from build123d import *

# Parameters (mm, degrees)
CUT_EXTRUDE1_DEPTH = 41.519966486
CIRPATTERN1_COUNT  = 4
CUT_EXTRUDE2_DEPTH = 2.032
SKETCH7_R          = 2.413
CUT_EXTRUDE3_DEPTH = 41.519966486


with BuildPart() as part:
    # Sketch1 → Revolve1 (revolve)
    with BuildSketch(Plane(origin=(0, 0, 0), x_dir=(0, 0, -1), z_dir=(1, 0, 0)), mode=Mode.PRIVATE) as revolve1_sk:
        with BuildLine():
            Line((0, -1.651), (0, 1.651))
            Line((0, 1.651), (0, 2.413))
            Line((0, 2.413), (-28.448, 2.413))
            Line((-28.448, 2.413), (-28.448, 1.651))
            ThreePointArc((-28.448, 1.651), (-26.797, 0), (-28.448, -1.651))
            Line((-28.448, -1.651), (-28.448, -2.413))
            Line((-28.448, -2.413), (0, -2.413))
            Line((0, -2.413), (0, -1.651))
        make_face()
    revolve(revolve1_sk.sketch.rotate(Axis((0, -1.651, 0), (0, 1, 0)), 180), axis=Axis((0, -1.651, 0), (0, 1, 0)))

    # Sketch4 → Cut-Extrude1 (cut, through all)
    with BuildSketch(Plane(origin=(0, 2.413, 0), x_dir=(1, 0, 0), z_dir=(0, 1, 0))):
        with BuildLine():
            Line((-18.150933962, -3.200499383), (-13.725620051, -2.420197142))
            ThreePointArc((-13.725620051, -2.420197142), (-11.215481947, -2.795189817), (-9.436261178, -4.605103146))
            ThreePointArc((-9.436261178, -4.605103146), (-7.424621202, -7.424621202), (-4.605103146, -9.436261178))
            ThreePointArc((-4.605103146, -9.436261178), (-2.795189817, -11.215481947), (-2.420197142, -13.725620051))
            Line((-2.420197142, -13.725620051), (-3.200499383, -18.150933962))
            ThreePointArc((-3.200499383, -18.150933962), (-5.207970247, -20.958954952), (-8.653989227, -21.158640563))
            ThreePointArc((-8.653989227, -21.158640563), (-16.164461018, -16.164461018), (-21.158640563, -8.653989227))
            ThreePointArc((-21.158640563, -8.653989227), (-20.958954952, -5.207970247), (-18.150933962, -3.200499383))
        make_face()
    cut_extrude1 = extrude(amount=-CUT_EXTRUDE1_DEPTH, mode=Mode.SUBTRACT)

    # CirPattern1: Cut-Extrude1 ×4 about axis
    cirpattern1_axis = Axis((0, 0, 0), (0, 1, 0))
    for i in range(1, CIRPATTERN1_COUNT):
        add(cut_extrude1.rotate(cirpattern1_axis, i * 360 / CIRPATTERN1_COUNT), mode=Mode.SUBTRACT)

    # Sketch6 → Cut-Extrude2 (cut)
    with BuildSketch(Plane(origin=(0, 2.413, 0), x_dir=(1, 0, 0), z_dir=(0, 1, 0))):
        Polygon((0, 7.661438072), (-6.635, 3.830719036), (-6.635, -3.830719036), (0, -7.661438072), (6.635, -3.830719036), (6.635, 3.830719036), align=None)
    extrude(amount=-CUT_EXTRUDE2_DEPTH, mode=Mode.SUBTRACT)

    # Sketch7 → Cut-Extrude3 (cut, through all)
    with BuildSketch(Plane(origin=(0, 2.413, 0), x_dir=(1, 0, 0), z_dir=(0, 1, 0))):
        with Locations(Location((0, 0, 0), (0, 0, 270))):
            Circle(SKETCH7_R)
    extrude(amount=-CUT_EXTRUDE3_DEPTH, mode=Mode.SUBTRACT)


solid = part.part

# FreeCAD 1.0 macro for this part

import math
import FreeCAD as App
import Part
import Sketcher

V = App.Vector
Q = App.Units.Quantity

doc = App.newDocument("Part")
body = doc.addObject("PartDesign::Body", "Body")

# Sketch on YZ plane
sketch1 = body.newObject("Sketcher::SketchObject", "Sketch")
sketch1.AttachmentSupport = (doc.getObject("YZ_Plane"), [""])
sketch1.MapMode = "FlatFace"
sketch1.addGeometry([
    Part.LineSegment(V(2.4, 0, 0), V(2.4, 28.4, 0)),  # 0
    Part.LineSegment(V(2.4, 28.4, 0), V(1.7, 28.4, 0)),  # 1
    Part.ArcOfCircle(Part.Circle(V(0, 28.4, 0), V(0, 0, 1), 1.7), math.radians(180), math.radians(360)),  # 2
    Part.LineSegment(V(-1.7, 28.4, 0), V(-2.4, 28.4, 0)),  # 3
    Part.LineSegment(V(-2.4, 28.4, 0), V(-2.4, 0, 0)),  # 4
    Part.LineSegment(V(-2.4, 0, 0), V(2.4, 0, 0)),  # 5
], False)
sketch1.addConstraint([
    Sketcher.Constraint("Coincident", 0, 2, 1, 1),
    Sketcher.Constraint("Coincident", 1, 2, 2, 2),
    Sketcher.Constraint("Coincident", 2, 1, 3, 1),
    Sketcher.Constraint("Coincident", 3, 2, 4, 1),
    Sketcher.Constraint("Coincident", 4, 2, 5, 1),
    Sketcher.Constraint("Coincident", 5, 2, 0, 1),
    Sketcher.Constraint("Vertical", 0),
    Sketcher.Constraint("Horizontal", 1),
    Sketcher.Constraint("Horizontal", 3),
    Sketcher.Constraint("Vertical", 4),
    Sketcher.Constraint("Horizontal", 5),
    Sketcher.Constraint("Symmetric", 4, 2, 5, 2, -1, 1),
    Sketcher.Constraint("Symmetric", 1, 2, 2, 1, -2),
    Sketcher.Constraint("Horizontal", 2, 3, 0, 2),
    Sketcher.Constraint("Radius", 2, Q("0.065 in")),
    Sketcher.Constraint("DistanceX", 1, 2, 1, 1, Q("0.03 in")),
    Sketcher.Constraint("DistanceY", 0, 1, 0, 2, Q("1.12 in")),
])
revolution = body.newObject("PartDesign::Revolution", "Revolution")
revolution.Profile = sketch1
revolution.ReferenceAxis = (sketch1, ["H_Axis"])
revolution.Angle = 360

# Sketch on XZ plane
sketch2 = body.newObject("Sketcher::SketchObject", "Sketch001")
sketch2.AttachmentSupport = (doc.getObject("XZ_Plane"), [""])
sketch2.MapMode = "FlatFace"
sketch2.AttachmentOffset = App.Placement(V(0, 0, -0.095 * 25.4), App.Rotation())
sketch2.addGeometry([
    Part.LineSegment(V(-13.7, 2.4, 0), V(-18.2, 3.2, 0)),  # 0
    Part.ArcOfCircle(Part.Circle(V(-17.5, 7.1, 0), V(0, 0, 1), 4), math.radians(158), math.radians(260)),  # 1
    Part.ArcOfCircle(Part.Circle(V(0, 0, 0), V(0, 0, 1), 22.9), math.radians(112), math.radians(158)),  # 2
    Part.ArcOfCircle(Part.Circle(V(-7.1, 17.5, 0), V(0, 0, 1), 4), math.radians(10), math.radians(112)),  # 3
    Part.LineSegment(V(-3.2, 18.2, 0), V(-2.4, 13.7, 0)),  # 4
    Part.ArcOfCircle(Part.Circle(V(-6.4, 13, 0), V(0, 0, 1), 4), math.radians(-64), math.radians(10)),  # 5
    Part.ArcOfCircle(Part.Circle(V(0, 0, 0), V(0, 0, 1), 10.5), math.radians(116), math.radians(154)),  # 6
    Part.ArcOfCircle(Part.Circle(V(-13, 6.4, 0), V(0, 0, 1), 4), math.radians(-100), math.radians(-26)),  # 7
], False)
sketch2.addConstraint([
    Sketcher.Constraint("Tangent", 0, 2, 1, 2),
    Sketcher.Constraint("Tangent", 1, 1, 2, 2),
    Sketcher.Constraint("Tangent", 2, 1, 3, 2),
    Sketcher.Constraint("Tangent", 3, 1, 4, 1),
    Sketcher.Constraint("Tangent", 4, 2, 5, 2),
    Sketcher.Constraint("Tangent", 5, 1, 6, 1),
    Sketcher.Constraint("Tangent", 6, 2, 7, 2),
    Sketcher.Constraint("Tangent", 7, 1, 0, 1),
    Sketcher.Constraint("Coincident", 2, 3, -1, 1),
    Sketcher.Constraint("Coincident", 6, 3, -1, 1),
    Sketcher.Constraint("Equal", 1, 3),
    Sketcher.Constraint("Equal", 3, 5),
    Sketcher.Constraint("Equal", 5, 7),
    Sketcher.Constraint("Equal", 0, 4),
    Sketcher.Constraint("Radius", 2, Q("0.9 in")),
    Sketcher.Constraint("Angle", 0, Q("170 deg")),
    Sketcher.Constraint("Angle", 4, Q("-80 deg")),
    Sketcher.Constraint("Radius", 1, Q("4 mm")),
    Sketcher.Constraint("Radius", 6, Q("10.5 mm")),
    Sketcher.Constraint("DistanceY", -1, 1, 0, 2, Q("3.200499 mm")),
])
pocket1 = body.newObject("PartDesign::Pocket", "Pocket")
pocket1.Profile = sketch2
pocket1.Type = "ThroughAll"
pocket1.Reversed = True
doc.recompute()

polarpattern = body.newObject("PartDesign::PolarPattern", "PolarPattern")
polarpattern.Originals = [pocket1]
polarpattern.Axis = (doc.getObject("Y_Axis"), [""])
polarpattern.Angle = 360
polarpattern.Occurrences = 4
body.Tip = polarpattern

# Sketch on XZ plane
sketch3 = body.newObject("Sketcher::SketchObject", "Sketch002")
sketch3.AttachmentSupport = (doc.getObject("XZ_Plane"), [""])
sketch3.MapMode = "FlatFace"
sketch3.AttachmentOffset = App.Placement(V(0, 0, -0.095 * 25.4), App.Rotation())
sketch3.addGeometry([
    Part.LineSegment(V(0, -8, 0), V(-7, -4, 0)),  # 0
    Part.LineSegment(V(-7, -4, 0), V(-7, 4, 0)),  # 1
    Part.LineSegment(V(-7, 4, 0), V(0, 8, 0)),  # 2
    Part.LineSegment(V(0, 8, 0), V(7, 4, 0)),  # 3
    Part.LineSegment(V(7, 4, 0), V(7, -4, 0)),  # 4
    Part.LineSegment(V(7, -4, 0), V(0, -8, 0)),  # 5
], False)
sketch3.addConstraint([
    Sketcher.Constraint("Coincident", 0, 2, 1, 1),
    Sketcher.Constraint("Coincident", 1, 2, 2, 1),
    Sketcher.Constraint("Coincident", 2, 2, 3, 1),
    Sketcher.Constraint("Coincident", 3, 2, 4, 1),
    Sketcher.Constraint("Coincident", 4, 2, 5, 1),
    Sketcher.Constraint("Coincident", 5, 2, 0, 1),
    Sketcher.Constraint("Vertical", 1),
    Sketcher.Constraint("Vertical", 4),
    Sketcher.Constraint("Symmetric", 0, 2, 3, 2, -1, 1),
    Sketcher.Constraint("Symmetric", 2, 2, 5, 2, -1, 1),
    Sketcher.Constraint("PointOnObject", 2, 2, -2),
    Sketcher.Constraint("Parallel", 2, 5),
    Sketcher.Constraint("Horizontal", 1, 2, 3, 2),
    Sketcher.Constraint("Angle", 0, Q("150 deg")),
    Sketcher.Constraint("DistanceY", 1, 1, 1, 2, Q("7.661438 mm")),
    Sketcher.Constraint("DistanceX", 0, 2, -1, 1, Q("6.635 mm")),
])
pocket2 = body.newObject("PartDesign::Pocket", "Pocket001")
pocket2.Profile = sketch3
pocket2.Length = Q("0.08 in")
pocket2.Reversed = True

# Sketch on XZ plane
sketch4 = body.newObject("Sketcher::SketchObject", "Sketch003")
sketch4.AttachmentSupport = (doc.getObject("XZ_Plane"), [""])
sketch4.MapMode = "FlatFace"
sketch4.AttachmentOffset = App.Placement(V(0, 0, -0.095 * 25.4), App.Rotation())
sketch4.addGeometry(Part.Circle(V(0, 0, 0), V(0, 0, 1), 2.4), False)
sketch4.addConstraint([
    Sketcher.Constraint("Coincident", 0, 3, -1, 1),
    Sketcher.Constraint("Diameter", 0, Q("0.19 in")),
])
pocket3 = body.newObject("PartDesign::Pocket", "Pocket002")
pocket3.Profile = sketch4
pocket3.Type = "ThroughAll"
pocket3.Reversed = True

doc.recompute()
